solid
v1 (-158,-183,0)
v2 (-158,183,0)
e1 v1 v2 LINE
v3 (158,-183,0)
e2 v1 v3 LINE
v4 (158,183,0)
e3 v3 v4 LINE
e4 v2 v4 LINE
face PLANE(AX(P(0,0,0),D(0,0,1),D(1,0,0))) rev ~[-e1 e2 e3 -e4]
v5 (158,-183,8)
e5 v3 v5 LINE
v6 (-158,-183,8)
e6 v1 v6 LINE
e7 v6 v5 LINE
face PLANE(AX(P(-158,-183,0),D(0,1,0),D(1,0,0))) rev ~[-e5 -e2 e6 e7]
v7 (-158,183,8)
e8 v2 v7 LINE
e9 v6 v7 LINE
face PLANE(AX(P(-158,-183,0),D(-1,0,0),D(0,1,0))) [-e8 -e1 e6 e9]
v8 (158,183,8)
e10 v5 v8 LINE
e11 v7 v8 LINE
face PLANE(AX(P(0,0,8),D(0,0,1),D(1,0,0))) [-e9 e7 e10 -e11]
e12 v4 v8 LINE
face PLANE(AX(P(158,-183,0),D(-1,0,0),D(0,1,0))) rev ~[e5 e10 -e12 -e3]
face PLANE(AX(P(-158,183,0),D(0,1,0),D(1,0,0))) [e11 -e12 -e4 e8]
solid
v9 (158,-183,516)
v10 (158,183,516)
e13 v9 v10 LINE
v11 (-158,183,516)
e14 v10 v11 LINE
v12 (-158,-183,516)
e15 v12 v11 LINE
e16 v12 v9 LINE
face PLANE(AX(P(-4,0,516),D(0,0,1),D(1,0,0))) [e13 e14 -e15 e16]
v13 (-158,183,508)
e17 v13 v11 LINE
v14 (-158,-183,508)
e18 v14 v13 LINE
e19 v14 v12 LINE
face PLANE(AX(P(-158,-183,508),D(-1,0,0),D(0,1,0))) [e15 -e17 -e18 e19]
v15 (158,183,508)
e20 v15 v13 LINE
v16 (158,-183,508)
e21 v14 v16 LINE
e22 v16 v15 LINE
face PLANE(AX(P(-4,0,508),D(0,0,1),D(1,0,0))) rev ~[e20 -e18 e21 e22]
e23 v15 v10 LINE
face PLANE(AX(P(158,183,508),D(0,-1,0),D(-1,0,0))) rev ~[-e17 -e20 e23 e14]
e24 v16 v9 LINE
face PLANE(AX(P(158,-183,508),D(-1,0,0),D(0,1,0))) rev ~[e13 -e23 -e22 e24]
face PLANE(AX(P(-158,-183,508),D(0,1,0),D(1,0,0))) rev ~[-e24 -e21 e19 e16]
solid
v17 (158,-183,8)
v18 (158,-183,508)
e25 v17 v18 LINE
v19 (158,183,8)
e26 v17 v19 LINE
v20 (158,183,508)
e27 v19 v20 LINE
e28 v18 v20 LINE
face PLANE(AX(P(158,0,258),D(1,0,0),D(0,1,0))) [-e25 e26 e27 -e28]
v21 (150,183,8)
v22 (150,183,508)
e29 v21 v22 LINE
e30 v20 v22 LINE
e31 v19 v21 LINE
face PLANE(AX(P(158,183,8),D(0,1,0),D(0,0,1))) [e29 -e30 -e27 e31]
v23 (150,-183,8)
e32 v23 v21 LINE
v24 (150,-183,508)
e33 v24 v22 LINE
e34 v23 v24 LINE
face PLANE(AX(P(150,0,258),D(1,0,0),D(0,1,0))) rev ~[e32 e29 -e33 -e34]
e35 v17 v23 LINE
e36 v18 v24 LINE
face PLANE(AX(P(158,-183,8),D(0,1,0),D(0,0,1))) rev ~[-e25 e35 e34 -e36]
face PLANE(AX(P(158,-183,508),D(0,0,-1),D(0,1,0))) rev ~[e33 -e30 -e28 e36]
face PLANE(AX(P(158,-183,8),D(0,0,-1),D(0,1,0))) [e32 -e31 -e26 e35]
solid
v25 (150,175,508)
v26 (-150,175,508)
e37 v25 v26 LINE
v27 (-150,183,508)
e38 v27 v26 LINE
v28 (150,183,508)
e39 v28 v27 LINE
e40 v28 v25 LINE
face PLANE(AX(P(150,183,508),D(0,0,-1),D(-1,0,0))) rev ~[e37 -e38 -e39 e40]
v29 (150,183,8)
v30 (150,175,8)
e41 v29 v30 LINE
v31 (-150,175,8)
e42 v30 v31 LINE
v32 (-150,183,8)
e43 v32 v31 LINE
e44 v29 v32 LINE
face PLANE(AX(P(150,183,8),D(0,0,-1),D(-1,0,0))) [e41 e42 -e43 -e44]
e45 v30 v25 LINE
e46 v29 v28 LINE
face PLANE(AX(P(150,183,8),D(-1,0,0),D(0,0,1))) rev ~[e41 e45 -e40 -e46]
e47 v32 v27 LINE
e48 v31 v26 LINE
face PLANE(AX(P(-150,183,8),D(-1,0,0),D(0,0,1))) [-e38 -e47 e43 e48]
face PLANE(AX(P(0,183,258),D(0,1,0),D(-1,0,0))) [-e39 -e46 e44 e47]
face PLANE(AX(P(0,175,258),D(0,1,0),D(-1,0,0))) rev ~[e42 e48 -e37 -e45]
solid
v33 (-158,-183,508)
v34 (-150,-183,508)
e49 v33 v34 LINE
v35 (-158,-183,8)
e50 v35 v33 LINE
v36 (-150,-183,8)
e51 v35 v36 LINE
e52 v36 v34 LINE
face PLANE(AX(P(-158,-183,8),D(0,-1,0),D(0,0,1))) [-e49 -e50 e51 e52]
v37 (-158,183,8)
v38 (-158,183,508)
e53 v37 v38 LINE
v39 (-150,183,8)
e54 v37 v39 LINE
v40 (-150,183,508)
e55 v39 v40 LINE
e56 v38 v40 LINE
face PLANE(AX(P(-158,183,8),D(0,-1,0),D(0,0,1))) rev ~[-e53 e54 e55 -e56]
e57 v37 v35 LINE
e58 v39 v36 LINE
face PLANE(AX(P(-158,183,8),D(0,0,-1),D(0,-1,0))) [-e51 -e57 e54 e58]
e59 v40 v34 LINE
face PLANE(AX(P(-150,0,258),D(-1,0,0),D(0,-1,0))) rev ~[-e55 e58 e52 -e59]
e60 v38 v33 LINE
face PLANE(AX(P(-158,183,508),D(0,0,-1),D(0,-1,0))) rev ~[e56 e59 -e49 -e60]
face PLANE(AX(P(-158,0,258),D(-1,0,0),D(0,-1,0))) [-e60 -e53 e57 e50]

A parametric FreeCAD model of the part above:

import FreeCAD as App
import Part
import Sketcher

V = App.Vector


def add_polygon(sketch, points):
    """Adds a closed chain of lines whose ends are joined by coincident constraints."""
    first, n = sketch.GeometryCount, len(points)
    for a, b in zip(points, points[1:] + points[:1]):
        sketch.addGeometry(Part.LineSegment(App.Vector(*a, 0), App.Vector(*b, 0)), False)
    for i in range(n):
        sketch.addConstraint(Sketcher.Constraint("Coincident", first + i, 2, first + (i + 1) % n, 1))

doc = App.newDocument("Part")
body = doc.addObject("PartDesign::Body", "Body")

# Sketch on XY plane
sketch1 = body.newObject("Sketcher::SketchObject", "Sketch")
sketch1.AttachmentSupport = (doc.getObject("XY_Plane"), [""])
sketch1.MapMode = "FlatFace"
add_polygon(sketch1, [(-158, 183), (-158, -183), (158, -183), (158, 183)])  # lines 0-3
sketch1.addConstraint([
    Sketcher.Constraint("Vertical", 0),
    Sketcher.Constraint("Horizontal", 1),
    Sketcher.Constraint("Vertical", 2),
    Sketcher.Constraint("Horizontal", 3),
    Sketcher.Constraint("Symmetric", 0, 2, 2, 2, -1, 1),
    Sketcher.Constraint("DistanceX", 1, 1, 1, 2, 316.0),
    Sketcher.Constraint("DistanceY", 0, 2, 0, 1, 366.0),
])
pad1 = body.newObject("PartDesign::Pad", "Pad")
pad1.Profile = sketch1
pad1.Length = 8
body2 = doc.addObject("PartDesign::Body", "Body001")

# Sketch on YZ plane
sketch2 = body2.newObject("Sketcher::SketchObject", "Sketch001")
sketch2.AttachmentSupport = (doc.getObject("YZ_Plane001"), [""])
sketch2.MapMode = "FlatFace"
sketch2.AttachmentOffset = App.Placement(V(0, 0, 158), App.Rotation())
add_polygon(sketch2, [(-183, 508), (-183, 8), (183, 8), (183, 508)])  # lines 0-3
sketch2.addConstraint([
    Sketcher.Constraint("Vertical", 0),
    Sketcher.Constraint("Horizontal", 1),
    Sketcher.Constraint("Vertical", 2),
    Sketcher.Constraint("Horizontal", 3),
    Sketcher.Constraint("DistanceX", 1, 1, 1, 2, 366.0),
    Sketcher.Constraint("DistanceY", 0, 2, 0, 1, 500.0),
    Sketcher.Constraint("DistanceX", 0, 2, -1, 1, 183.0),
    Sketcher.Constraint("DistanceY", -1, 1, 0, 2, 8.0),
])
pad2 = body2.newObject("PartDesign::Pad", "Pad001")
pad2.Profile = sketch2
pad2.Length = 8
pad2.Reversed = True
body3 = doc.addObject("PartDesign::Body", "Body002")

# Sketch on YZ plane
sketch3 = body3.newObject("Sketcher::SketchObject", "Sketch002")
sketch3.AttachmentSupport = (doc.getObject("YZ_Plane002"), [""])
sketch3.MapMode = "FlatFace"
sketch3.AttachmentOffset = App.Placement(V(0, 0, -158), App.Rotation())
add_polygon(sketch3, [(183, 508), (183, 8), (-183, 8), (-183, 508)])  # lines 0-3
sketch3.addConstraint([
    Sketcher.Constraint("Vertical", 0),
    Sketcher.Constraint("Horizontal", 1),
    Sketcher.Constraint("Vertical", 2),
    Sketcher.Constraint("Horizontal", 3),
    Sketcher.Constraint("DistanceX", 1, 2, 1, 1, 366.0),
    Sketcher.Constraint("DistanceY", 0, 2, 0, 1, 500.0),
    Sketcher.Constraint("DistanceX", -1, 1, 0, 2, 183.0),
    Sketcher.Constraint("DistanceY", -1, 1, 0, 2, 8.0),
])
pad3 = body3.newObject("PartDesign::Pad", "Pad002")
pad3.Profile = sketch3
pad3.Length = 8
body4 = doc.addObject("PartDesign::Body", "Body003")

# Sketch on XZ plane
sketch4 = body4.newObject("Sketcher::SketchObject", "Sketch003")
sketch4.AttachmentSupport = (doc.getObject("XZ_Plane003"), [""])
sketch4.MapMode = "FlatFace"
sketch4.AttachmentOffset = App.Placement(V(0, 0, -183), App.Rotation())
add_polygon(sketch4, [(150, 508), (150, 8), (-150, 8), (-150, 508)])  # lines 0-3
sketch4.addConstraint([
    Sketcher.Constraint("Vertical", 0),
    Sketcher.Constraint("Horizontal", 1),
    Sketcher.Constraint("Vertical", 2),
    Sketcher.Constraint("Horizontal", 3),
    Sketcher.Constraint("DistanceX", 1, 2, 1, 1, 300.0),
    Sketcher.Constraint("DistanceY", 0, 2, 0, 1, 500.0),
    Sketcher.Constraint("DistanceX", -1, 1, 0, 2, 150.0),
    Sketcher.Constraint("DistanceY", -1, 1, 0, 2, 8.0),
])
pad4 = body4.newObject("PartDesign::Pad", "Pad003")
pad4.Profile = sketch4
pad4.Length = 8
body5 = doc.addObject("PartDesign::Body", "Body004")

# Sketch on XY plane
sketch5 = body5.newObject("Sketcher::SketchObject", "Sketch004")
sketch5.AttachmentSupport = (doc.getObject("XY_Plane004"), [""])
sketch5.MapMode = "FlatFace"
sketch5.AttachmentOffset = App.Placement(V(0, 0, 508), App.Rotation())
add_polygon(sketch5, [(-158, 183), (-158, -183), (158, -183), (158, 183)])  # lines 0-3
sketch5.addConstraint([
    Sketcher.Constraint("Vertical", 0),
    Sketcher.Constraint("Horizontal", 1),
    Sketcher.Constraint("Vertical", 2),
    Sketcher.Constraint("Horizontal", 3),
    Sketcher.Constraint("Symmetric", 0, 2, 2, 2, -1, 1),
    Sketcher.Constraint("DistanceX", 1, 1, 1, 2, 316.0),
    Sketcher.Constraint("DistanceY", 0, 2, 0, 1, 366.0),
])
pad5 = body5.newObject("PartDesign::Pad", "Pad004")
pad5.Profile = sketch5
pad5.Length = 8

doc.recompute()
